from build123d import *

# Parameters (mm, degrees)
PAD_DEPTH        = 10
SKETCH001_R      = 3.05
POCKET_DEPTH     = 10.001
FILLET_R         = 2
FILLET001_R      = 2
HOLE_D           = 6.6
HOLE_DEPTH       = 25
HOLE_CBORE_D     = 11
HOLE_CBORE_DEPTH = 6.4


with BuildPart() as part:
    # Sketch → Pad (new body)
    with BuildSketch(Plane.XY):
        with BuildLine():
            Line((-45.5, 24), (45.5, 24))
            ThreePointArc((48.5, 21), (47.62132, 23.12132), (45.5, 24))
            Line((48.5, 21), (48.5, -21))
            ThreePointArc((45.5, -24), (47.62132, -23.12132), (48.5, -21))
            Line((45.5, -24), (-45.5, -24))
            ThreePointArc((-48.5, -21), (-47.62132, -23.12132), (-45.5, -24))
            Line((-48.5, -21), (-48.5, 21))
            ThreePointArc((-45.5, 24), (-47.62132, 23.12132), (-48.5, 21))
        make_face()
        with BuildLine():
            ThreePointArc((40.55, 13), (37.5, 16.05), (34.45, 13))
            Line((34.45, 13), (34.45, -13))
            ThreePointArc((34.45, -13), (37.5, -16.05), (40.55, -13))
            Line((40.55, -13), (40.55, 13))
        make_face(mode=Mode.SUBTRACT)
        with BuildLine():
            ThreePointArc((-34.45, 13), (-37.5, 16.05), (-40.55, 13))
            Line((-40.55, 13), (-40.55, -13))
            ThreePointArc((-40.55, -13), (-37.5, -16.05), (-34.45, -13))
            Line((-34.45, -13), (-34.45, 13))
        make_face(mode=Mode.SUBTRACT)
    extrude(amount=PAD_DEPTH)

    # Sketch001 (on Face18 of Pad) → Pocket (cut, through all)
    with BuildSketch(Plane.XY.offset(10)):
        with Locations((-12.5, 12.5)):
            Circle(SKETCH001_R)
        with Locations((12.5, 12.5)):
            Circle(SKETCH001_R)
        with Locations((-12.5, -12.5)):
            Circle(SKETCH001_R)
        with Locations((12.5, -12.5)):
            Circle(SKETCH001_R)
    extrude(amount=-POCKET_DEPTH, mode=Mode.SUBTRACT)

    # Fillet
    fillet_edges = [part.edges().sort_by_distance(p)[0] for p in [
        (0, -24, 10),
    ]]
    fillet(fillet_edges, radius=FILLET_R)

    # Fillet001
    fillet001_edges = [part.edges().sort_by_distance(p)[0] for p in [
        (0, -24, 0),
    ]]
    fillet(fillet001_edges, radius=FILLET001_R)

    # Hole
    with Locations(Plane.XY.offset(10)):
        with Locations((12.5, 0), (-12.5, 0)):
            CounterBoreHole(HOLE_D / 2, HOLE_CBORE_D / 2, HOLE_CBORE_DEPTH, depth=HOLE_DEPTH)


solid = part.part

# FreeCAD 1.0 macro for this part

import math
import FreeCAD as App
import Part
import Sketcher
Q = App.Units.Quantity


def edges_at(feature, points):
    """Names of the edges that pass closest to the given points."""
    edges = feature.Shape.Edges
    near = lambda p: min(range(len(edges)), key=lambda i: edges[i].distToShape(Part.Vertex(*p))[0])
    return sorted({f"Edge{near(p) + 1}" for p in points})

doc = App.newDocument("Part")
body = doc.addObject("PartDesign::Body", "Body")

# Sketch on XY plane
sketch1 = doc.addObject("Sketcher::SketchObject", "Sketch")
body.addObject(sketch1)
sketch1.AttachmentSupport = (doc.XY_Plane, [""])
sketch1.MapMode = "FlatFace"
sketch1.addGeometry([
    Part.LineSegment(App.Vector(45.5, 24, 0), App.Vector(-45.5, 24, 0)),  # 0
    Part.ArcOfCircle(Part.Circle(App.Vector(-45.499999, 20.999999, 0), App.Vector(0, 0, 1), 3.000001), math.radians(90.000022), math.radians(179.999978)),  # 1
    Part.LineSegment(App.Vector(-48.5, 21, 0), App.Vector(-48.5, -21, 0)),  # 2
    Part.ArcOfCircle(Part.Circle(App.Vector(-45.499999, -20.999999, 0), App.Vector(0, 0, 1), 3.000001), math.radians(-179.999978), math.radians(-90.000022)),  # 3
    Part.LineSegment(App.Vector(-45.5, -24, 0), App.Vector(45.5, -24, 0)),  # 4
    Part.ArcOfCircle(Part.Circle(App.Vector(45.499999, -20.999999, 0), App.Vector(0, 0, 1), 3.000001), math.radians(-89.999978), math.radians(-0.000022)),  # 5
    Part.LineSegment(App.Vector(48.5, -21, 0), App.Vector(48.5, 21, 0)),  # 6
    Part.ArcOfCircle(Part.Circle(App.Vector(45.499999, 20.999999, 0), App.Vector(0, 0, 1), 3.000001), math.radians(0.000022), math.radians(89.999978)),  # 7
    Part.LineSegment(App.Vector(40.55, 13, 0), App.Vector(40.55, -13, 0)),  # 8
    Part.ArcOfCircle(Part.Circle(App.Vector(37.5, -13, 0), App.Vector(0, 0, 1), 3.05), math.radians(180), math.radians(360)),  # 9
    Part.LineSegment(App.Vector(34.45, -13, 0), App.Vector(34.45, 13, 0)),  # 10
    Part.ArcOfCircle(Part.Circle(App.Vector(37.5, 13, 0), App.Vector(0, 0, 1), 3.05), math.radians(0), math.radians(180)),  # 11
    Part.LineSegment(App.Vector(-34.45, 13, 0), App.Vector(-34.45, -13, 0)),  # 12
    Part.ArcOfCircle(Part.Circle(App.Vector(-37.5, -13, 0), App.Vector(0, 0, 1), 3.05), math.radians(180), math.radians(360)),  # 13
    Part.LineSegment(App.Vector(-40.55, -13, 0), App.Vector(-40.55, 13, 0)),  # 14
    Part.ArcOfCircle(Part.Circle(App.Vector(-37.5, 13, 0), App.Vector(0, 0, 1), 3.05), math.radians(0), math.radians(180)),  # 15
], False)
sketch1.addConstraint([
    Sketcher.Constraint("Tangent", 0, 2, 1, 1),
    Sketcher.Constraint("Tangent", 1, 2, 2, 1),
    Sketcher.Constraint("Tangent", 2, 2, 3, 1),
    Sketcher.Constraint("Tangent", 3, 2, 4, 1),
    Sketcher.Constraint("Tangent", 4, 2, 5, 1),
    Sketcher.Constraint("Tangent", 5, 2, 6, 1),
    Sketcher.Constraint("Tangent", 6, 2, 7, 1),
    Sketcher.Constraint("Tangent", 7, 2, 0, 1),
    Sketcher.Constraint("Tangent", 8, 2, 9, 2),
    Sketcher.Constraint("Tangent", 9, 1, 10, 1),
    Sketcher.Constraint("Tangent", 10, 2, 11, 2),
    Sketcher.Constraint("Tangent", 11, 1, 8, 1),
    Sketcher.Constraint("Tangent", 12, 2, 13, 2),
    Sketcher.Constraint("Tangent", 13, 1, 14, 1),
    Sketcher.Constraint("Tangent", 14, 2, 15, 2),
    Sketcher.Constraint("Tangent", 15, 1, 12, 1),
    Sketcher.Constraint("Horizontal", 0),
    Sketcher.Constraint("Vertical", 2),
    Sketcher.Constraint("Horizontal", 4),
    Sketcher.Constraint("Vertical", 6),
    Sketcher.Constraint("Vertical", 8),
    Sketcher.Constraint("Vertical", 10),
    Sketcher.Constraint("Vertical", 12),
    Sketcher.Constraint("Vertical", 14),
    Sketcher.Constraint("Equal", 1, 3),
    Sketcher.Constraint("Equal", 3, 5),
    Sketcher.Constraint("Equal", 5, 7),
    Sketcher.Constraint("Equal", 11, 13),
    Sketcher.Constraint("Symmetric", 1, 3, 5, 3, -1, 1),
    Sketcher.Constraint("Symmetric", 11, 3, 13, 3, -1, 1),
    Sketcher.Constraint("Horizontal", 9, 3, 13, 3),
    Sketcher.Constraint("Horizontal", 11, 3, 15, 3),
    Sketcher.Constraint("Radius", 1, Q("3.000001 mm")),
    Sketcher.Constraint("DistanceX", 0, 2, 0, 1, Q("91 mm")),
    Sketcher.Constraint("DistanceY", 2, 2, 2, 1, Q("42 mm")),
    Sketcher.Constraint("DistanceY", 8, 2, 8, 1, Q("26 mm")),
    Sketcher.Constraint("Radius", 9, Q("3.05 mm")),
    Sketcher.Constraint("DistanceX", 9, 3, 5, 3, Q("7.999999 mm")),
])
pad1 = doc.addObject("PartDesign::Pad", "Pad")
body.addObject(pad1)
pad1.Profile = sketch1
pad1.Length = 10

# Sketch on XY plane
sketch2 = doc.addObject("Sketcher::SketchObject", "Sketch001")
body.addObject(sketch2)
sketch2.AttachmentSupport = (doc.XY_Plane, [""])
sketch2.MapMode = "FlatFace"
sketch2.AttachmentOffset = App.Placement(App.Vector(0, 0, 10), App.Rotation())
sketch2.addGeometry([
    Part.Circle(App.Vector(-12.5, 12.5, 0), App.Vector(0, 0, 1), 3.05),
    Part.Circle(App.Vector(12.5, 12.5, 0), App.Vector(0, 0, 1), 3.05),
    Part.Circle(App.Vector(-12.5, -12.5, 0), App.Vector(0, 0, 1), 3.05),
    Part.Circle(App.Vector(12.5, -12.5, 0), App.Vector(0, 0, 1), 3.05),
], False)
sketch2.addConstraint([
    Sketcher.Constraint("Equal", 0, 1),
    Sketcher.Constraint("Equal", 1, 2),
    Sketcher.Constraint("Equal", 2, 3),
    Sketcher.Constraint("Symmetric", 1, 3, 2, 3, -1, 1),
    Sketcher.Constraint("Symmetric", 0, 3, 3, 3, -1, 1),
    Sketcher.Constraint("Symmetric", 0, 3, 1, 3, -2),
    Sketcher.Constraint("Diameter", 0, Q("6.1 mm")),
    Sketcher.Constraint("DistanceX", 0, 3, 1, 3, Q("25 mm")),
    Sketcher.Constraint("DistanceY", 2, 3, 0, 3, Q("25 mm")),
])
pocket1 = doc.addObject("PartDesign::Pocket", "Pocket")
body.addObject(pocket1)
pocket1.Profile = sketch2
pocket1.Type = "ThroughAll"
doc.recompute()

fillet = doc.addObject("PartDesign::Fillet", "Fillet")
body.addObject(fillet)
fillet.Base = (pocket1, edges_at(pocket1, [(0, -24, 10)]))
fillet.Radius = 2
doc.recompute()

fillet2 = doc.addObject("PartDesign::Fillet", "Fillet001")
body.addObject(fillet2)
fillet2.Base = (fillet, edges_at(fillet, [(0, -24, 0)]))
fillet2.Radius = 2

# Sketch on XY plane
sketch3 = doc.addObject("Sketcher::SketchObject", "Sketch002")
body.addObject(sketch3)
sketch3.AttachmentSupport = (doc.XY_Plane, [""])
sketch3.MapMode = "FlatFace"
sketch3.AttachmentOffset = App.Placement(App.Vector(0, 0, 10), App.Rotation())
sketch3.addGeometry([
    Part.Circle(App.Vector(12.5, 0, 0), App.Vector(0, 0, 1), 3.3),
    Part.Circle(App.Vector(-12.5, 0, 0), App.Vector(0, 0, 1), 3.3),
], False)
sketch3.addConstraint([
    Sketcher.Constraint("Equal", 0, 1),
    Sketcher.Constraint("Symmetric", 0, 3, 1, 3, -1, 1),
    Sketcher.Constraint("PointOnObject", 0, 3, -1),
    Sketcher.Constraint("Diameter", 0, Q("6.6 mm")),
    Sketcher.Constraint("DistanceX", 1, 3, 0, 3, Q("25 mm")),
])
doc.recompute()
hole = doc.addObject("PartDesign::Hole", "Hole")
body.addObject(hole)
hole.Profile = sketch3
hole.ThreadType = "None"
hole.Diameter = 6.6
hole.DepthType = "Dimension"
hole.Depth = 25
hole.DrillPoint = "Flat"
hole.HoleCutType = "Counterbore"
hole.HoleCutDiameter = 11
hole.HoleCutDepth = 6.4

doc.recompute()
